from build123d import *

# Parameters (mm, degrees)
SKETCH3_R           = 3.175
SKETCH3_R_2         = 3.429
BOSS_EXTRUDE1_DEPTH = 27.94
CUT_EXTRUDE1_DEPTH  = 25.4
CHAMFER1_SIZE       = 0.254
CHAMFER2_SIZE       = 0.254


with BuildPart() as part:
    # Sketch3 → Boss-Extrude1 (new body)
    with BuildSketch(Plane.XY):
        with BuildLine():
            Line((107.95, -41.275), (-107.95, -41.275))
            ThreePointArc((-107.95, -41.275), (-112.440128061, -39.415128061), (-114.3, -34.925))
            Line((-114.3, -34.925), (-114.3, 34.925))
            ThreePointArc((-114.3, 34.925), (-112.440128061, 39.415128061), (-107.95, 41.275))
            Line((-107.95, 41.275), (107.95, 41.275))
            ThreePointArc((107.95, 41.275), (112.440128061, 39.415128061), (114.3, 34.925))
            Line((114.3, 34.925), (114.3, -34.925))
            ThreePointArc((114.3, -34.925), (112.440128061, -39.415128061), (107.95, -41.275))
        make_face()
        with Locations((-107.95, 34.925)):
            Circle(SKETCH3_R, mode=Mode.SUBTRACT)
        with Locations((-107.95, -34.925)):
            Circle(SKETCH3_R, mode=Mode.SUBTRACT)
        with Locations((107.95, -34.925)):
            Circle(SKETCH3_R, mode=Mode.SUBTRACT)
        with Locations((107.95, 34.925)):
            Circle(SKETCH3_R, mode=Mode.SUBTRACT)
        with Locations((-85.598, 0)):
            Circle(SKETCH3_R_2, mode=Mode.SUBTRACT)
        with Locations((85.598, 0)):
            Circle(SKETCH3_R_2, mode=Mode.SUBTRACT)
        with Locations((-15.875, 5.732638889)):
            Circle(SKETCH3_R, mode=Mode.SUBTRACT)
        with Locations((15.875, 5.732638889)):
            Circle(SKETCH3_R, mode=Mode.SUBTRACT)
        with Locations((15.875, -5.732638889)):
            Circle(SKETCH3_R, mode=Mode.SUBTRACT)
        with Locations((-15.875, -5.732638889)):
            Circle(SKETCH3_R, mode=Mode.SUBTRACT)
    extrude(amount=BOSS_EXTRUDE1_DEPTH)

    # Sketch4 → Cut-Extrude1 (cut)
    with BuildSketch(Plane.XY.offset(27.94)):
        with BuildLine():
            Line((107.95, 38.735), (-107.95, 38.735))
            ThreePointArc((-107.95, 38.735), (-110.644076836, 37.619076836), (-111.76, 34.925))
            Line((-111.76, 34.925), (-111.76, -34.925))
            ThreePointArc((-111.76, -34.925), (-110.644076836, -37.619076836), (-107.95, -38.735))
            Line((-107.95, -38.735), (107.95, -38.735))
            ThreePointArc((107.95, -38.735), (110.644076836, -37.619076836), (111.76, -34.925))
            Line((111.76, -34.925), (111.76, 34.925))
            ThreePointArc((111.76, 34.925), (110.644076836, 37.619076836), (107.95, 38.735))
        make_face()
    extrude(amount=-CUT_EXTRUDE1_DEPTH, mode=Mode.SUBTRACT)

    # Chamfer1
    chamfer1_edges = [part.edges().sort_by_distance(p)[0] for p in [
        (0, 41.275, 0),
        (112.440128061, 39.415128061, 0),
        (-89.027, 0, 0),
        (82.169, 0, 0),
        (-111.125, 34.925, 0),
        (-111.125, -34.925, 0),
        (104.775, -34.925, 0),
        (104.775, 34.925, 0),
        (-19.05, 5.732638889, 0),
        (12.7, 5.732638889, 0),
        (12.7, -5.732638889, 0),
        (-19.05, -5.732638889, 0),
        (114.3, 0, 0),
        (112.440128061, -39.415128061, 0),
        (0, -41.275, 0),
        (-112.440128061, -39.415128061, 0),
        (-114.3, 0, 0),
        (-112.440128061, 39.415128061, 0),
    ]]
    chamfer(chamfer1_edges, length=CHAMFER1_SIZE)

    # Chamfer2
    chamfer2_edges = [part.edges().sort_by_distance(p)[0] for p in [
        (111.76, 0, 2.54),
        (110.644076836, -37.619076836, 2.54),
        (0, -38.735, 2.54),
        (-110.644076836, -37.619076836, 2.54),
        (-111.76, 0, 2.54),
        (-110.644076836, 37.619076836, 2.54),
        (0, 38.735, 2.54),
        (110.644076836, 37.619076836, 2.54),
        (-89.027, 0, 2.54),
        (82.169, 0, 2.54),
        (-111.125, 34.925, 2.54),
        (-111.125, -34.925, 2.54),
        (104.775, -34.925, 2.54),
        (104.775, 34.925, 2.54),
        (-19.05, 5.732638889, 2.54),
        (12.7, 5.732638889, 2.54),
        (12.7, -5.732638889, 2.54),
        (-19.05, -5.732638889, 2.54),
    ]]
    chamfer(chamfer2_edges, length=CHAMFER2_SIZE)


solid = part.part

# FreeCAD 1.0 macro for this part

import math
import FreeCAD as App
import Part
import Sketcher
Q = App.Units.Quantity


def edges_at(feature, points):
    """Names of the edges that pass closest to the given points."""
    edges = feature.Shape.Edges
    near = lambda p: min(range(len(edges)), key=lambda i: edges[i].distToShape(Part.Vertex(*p))[0])
    return sorted({f"Edge{near(p) + 1}" for p in points})

doc = App.newDocument("Part")
body = doc.addObject("PartDesign::Body", "Body")

sketch1 = body.newObject("Sketcher::SketchObject", "Sketch")
sketch1.AttachmentSupport = (doc.getObject("XY_Plane"), [""])
sketch1.MapMode = "FlatFace"
sketch1.addGeometry([
    Part.LineSegment(App.Vector(-107.95, -41.275, 0), App.Vector(107.95, -41.275, 0)),
    Part.ArcOfCircle(Part.Circle(App.Vector(107.95, -34.925, 0), App.Vector(0, 0, 1), 6.35), math.radians(-90), math.radians(0)),
    Part.LineSegment(App.Vector(114.3, -34.925, 0), App.Vector(114.3, 34.925, 0)),
    Part.ArcOfCircle(Part.Circle(App.Vector(107.95, 34.925, 0), App.Vector(0, 0, 1), 6.35), math.radians(0), math.radians(90)),
    Part.LineSegment(App.Vector(107.95, 41.275, 0), App.Vector(-107.95, 41.275, 0)),
    Part.ArcOfCircle(Part.Circle(App.Vector(-107.95, 34.925, 0), App.Vector(0, 0, 1), 6.35), math.radians(90), math.radians(180)),
    Part.LineSegment(App.Vector(-114.3, 34.925, 0), App.Vector(-114.3, -34.925, 0)),
    Part.ArcOfCircle(Part.Circle(App.Vector(-107.95, -34.925, 0), App.Vector(0, 0, 1), 6.35), math.radians(180), math.radians(270)),
    Part.Circle(App.Vector(107.95, -34.925, 0), App.Vector(0, 0, 1), 3.175),
    Part.Circle(App.Vector(15.875, -5.732639, 0), App.Vector(0, 0, 1), 3.175),
    Part.Circle(App.Vector(-107.95, -34.925, 0), App.Vector(0, 0, 1), 3.175),
    Part.Circle(App.Vector(-15.875, -5.732639, 0), App.Vector(0, 0, 1), 3.175),
    Part.Circle(App.Vector(85.598, 0, 0), App.Vector(0, 0, 1), 3.429),
    Part.Circle(App.Vector(15.875, 5.732639, 0), App.Vector(0, 0, 1), 3.175),
    Part.Circle(App.Vector(107.95, 34.925, 0), App.Vector(0, 0, 1), 3.175),
    Part.Circle(App.Vector(-15.875, 5.732639, 0), App.Vector(0, 0, 1), 3.175),
    Part.Circle(App.Vector(-85.598, 0, 0), App.Vector(0, 0, 1), 3.429),
    Part.Circle(App.Vector(-107.95, 34.925, 0), App.Vector(0, 0, 1), 3.175),
], False)
sketch1.addConstraint([
    Sketcher.Constraint("Tangent", 0, 2, 1, 1),
    Sketcher.Constraint("Tangent", 1, 2, 2, 1),
    Sketcher.Constraint("Tangent", 2, 2, 3, 1),
    Sketcher.Constraint("Tangent", 3, 2, 4, 1),
    Sketcher.Constraint("Tangent", 4, 2, 5, 1),
    Sketcher.Constraint("Tangent", 5, 2, 6, 1),
    Sketcher.Constraint("Tangent", 6, 2, 7, 1),
    Sketcher.Constraint("Tangent", 7, 2, 0, 1),
    Sketcher.Constraint("Horizontal", 0),
    Sketcher.Constraint("Vertical", 2),
    Sketcher.Constraint("Horizontal", 4),
    Sketcher.Constraint("Vertical", 6),
    Sketcher.Constraint("Coincident", 8, 3, 1, 3),
    Sketcher.Constraint("Coincident", 10, 3, 7, 3),
    Sketcher.Constraint("Coincident", 14, 3, 3, 3),
    Sketcher.Constraint("Coincident", 17, 3, 5, 3),
    Sketcher.Constraint("Equal", 1, 3),
    Sketcher.Constraint("Equal", 3, 5),
    Sketcher.Constraint("Equal", 5, 7),
    Sketcher.Constraint("Equal", 8, 9),
    Sketcher.Constraint("Equal", 9, 10),
    Sketcher.Constraint("Equal", 10, 11),
    Sketcher.Constraint("Equal", 11, 13),
    Sketcher.Constraint("Equal", 13, 14),
    Sketcher.Constraint("Equal", 14, 15),
    Sketcher.Constraint("Equal", 12, 16),
    Sketcher.Constraint("Equal", 15, 17),
    Sketcher.Constraint("Symmetric", 1, 3, 5, 3, -1, 1),
    Sketcher.Constraint("Symmetric", 11, 3, 13, 3, -1, 1),
    Sketcher.Constraint("Symmetric", 9, 3, 15, 3, -1, 1),
    Sketcher.Constraint("Symmetric", 12, 3, 16, 3, -1, 1),
    Sketcher.Constraint("Symmetric", 9, 3, 11, 3, -2),
    Sketcher.Constraint("PointOnObject", 12, 3, -1),
    Sketcher.Constraint("Diameter", 8, Q("0.25 in")),
    Sketcher.Constraint("Diameter", 12, Q("0.27 in")),
    Sketcher.Constraint("Radius", 1, Q("0.25 in")),
    Sketcher.Constraint("DistanceX", 0, 1, 0, 2, Q("8.5 in")),
    Sketcher.Constraint("DistanceY", 0, 2, 14, 3, Q("3 in")),
    Sketcher.Constraint("DistanceX", -1, 1, 12, 3, Q("3.37 in")),
    Sketcher.Constraint("DistanceX", 11, 3, 9, 3, Q("1.25 in")),
    Sketcher.Constraint("DistanceY", 9, 3, -1, 1, Q("5.732639 mm")),
])
pad1 = body.newObject("PartDesign::Pad", "Pad")
pad1.Profile = sketch1
pad1.Length = Q("1.1 in")

sketch2 = body.newObject("Sketcher::SketchObject", "Sketch001")
sketch2.AttachmentSupport = (doc.getObject("XY_Plane"), [""])
sketch2.MapMode = "FlatFace"
sketch2.AttachmentOffset = App.Placement(App.Vector(0, 0, 1.1 * 25.4), App.Rotation())
sketch2.addGeometry([
    Part.LineSegment(App.Vector(107.95, 38.735, 0), App.Vector(-107.95, 38.735, 0)),
    Part.ArcOfCircle(Part.Circle(App.Vector(-107.95, 34.925, 0), App.Vector(0, 0, 1), 3.81), math.radians(90), math.radians(180)),
    Part.LineSegment(App.Vector(-111.76, 34.925, 0), App.Vector(-111.76, -34.925, 0)),
    Part.ArcOfCircle(Part.Circle(App.Vector(-107.95, -34.925, 0), App.Vector(0, 0, 1), 3.81), math.radians(-180), math.radians(-90)),
    Part.LineSegment(App.Vector(-107.95, -38.735, 0), App.Vector(107.95, -38.735, 0)),
    Part.ArcOfCircle(Part.Circle(App.Vector(107.95, -34.925, 0), App.Vector(0, 0, 1), 3.81), math.radians(-90), math.radians(0)),
    Part.LineSegment(App.Vector(111.76, -34.925, 0), App.Vector(111.76, 34.925, 0)),
    Part.ArcOfCircle(Part.Circle(App.Vector(107.95, 34.925, 0), App.Vector(0, 0, 1), 3.81), math.radians(0), math.radians(90)),
], False)
sketch2.addConstraint([
    Sketcher.Constraint("Tangent", 0, 2, 1, 1),
    Sketcher.Constraint("Tangent", 1, 2, 2, 1),
    Sketcher.Constraint("Tangent", 2, 2, 3, 1),
    Sketcher.Constraint("Tangent", 3, 2, 4, 1),
    Sketcher.Constraint("Tangent", 4, 2, 5, 1),
    Sketcher.Constraint("Tangent", 5, 2, 6, 1),
    Sketcher.Constraint("Tangent", 6, 2, 7, 1),
    Sketcher.Constraint("Tangent", 7, 2, 0, 1),
    Sketcher.Constraint("Horizontal", 0),
    Sketcher.Constraint("Vertical", 2),
    Sketcher.Constraint("Horizontal", 4),
    Sketcher.Constraint("Vertical", 6),
    Sketcher.Constraint("Equal", 1, 3),
    Sketcher.Constraint("Equal", 3, 5),
    Sketcher.Constraint("Equal", 5, 7),
    Sketcher.Constraint("Symmetric", 1, 3, 5, 3, -1, 1),
    Sketcher.Constraint("Radius", 1, Q("0.15 in")),
    Sketcher.Constraint("DistanceX", 0, 2, 0, 1, Q("8.5 in")),
    Sketcher.Constraint("DistanceY", 2, 2, 2, 1, Q("2.75 in")),
])
pocket1 = body.newObject("PartDesign::Pocket", "Pocket")
pocket1.Profile = sketch2
pocket1.Length = Q("1 in")
doc.recompute()

chamfer = body.newObject("PartDesign::Chamfer", "Chamfer")
chamfer.Base = (pocket1, edges_at(pocket1, [
    (0, 41.275, 0),
    (112.44, 39.415, 0),
    (-89.027, 0, 0),
    (82.169, 0, 0),
    (-111.125, 34.925, 0),
    (-111.125, -34.925, 0),
    (104.775, -34.925, 0),
    (104.775, 34.925, 0),
    (-19.05, 5.733, 0),
    (12.7, 5.733, 0),
    (12.7, -5.733, 0),
    (-19.05, -5.733, 0),
    (114.3, 0, 0),
    (112.44, -39.415, 0),
    (0, -41.275, 0),
    (-112.44, -39.415, 0),
    (-114.3, 0, 0),
    (-112.44, 39.415, 0),
]))
chamfer.Size = Q("0.01 in")
doc.recompute()

chamfer2 = body.newObject("PartDesign::Chamfer", "Chamfer001")
chamfer2.Base = (chamfer, edges_at(chamfer, [
    (111.76, 0, 2.54),
    (110.644, -37.619, 2.54),
    (0, -38.735, 2.54),
    (-110.644, -37.619, 2.54),
    (-111.76, 0, 2.54),
    (-110.644, 37.619, 2.54),
    (0, 38.735, 2.54),
    (110.644, 37.619, 2.54),
    (-89.027, 0, 2.54),
    (82.169, 0, 2.54),
    (-111.125, 34.925, 2.54),
    (-111.125, -34.925, 2.54),
    (104.775, -34.925, 2.54),
    (104.775, 34.925, 2.54),
    (-19.05, 5.733, 2.54),
    (12.7, 5.733, 2.54),
    (12.7, -5.733, 2.54),
    (-19.05, -5.733, 2.54),
]))
chamfer2.Size = Q("0.01 in")

doc.recompute()
